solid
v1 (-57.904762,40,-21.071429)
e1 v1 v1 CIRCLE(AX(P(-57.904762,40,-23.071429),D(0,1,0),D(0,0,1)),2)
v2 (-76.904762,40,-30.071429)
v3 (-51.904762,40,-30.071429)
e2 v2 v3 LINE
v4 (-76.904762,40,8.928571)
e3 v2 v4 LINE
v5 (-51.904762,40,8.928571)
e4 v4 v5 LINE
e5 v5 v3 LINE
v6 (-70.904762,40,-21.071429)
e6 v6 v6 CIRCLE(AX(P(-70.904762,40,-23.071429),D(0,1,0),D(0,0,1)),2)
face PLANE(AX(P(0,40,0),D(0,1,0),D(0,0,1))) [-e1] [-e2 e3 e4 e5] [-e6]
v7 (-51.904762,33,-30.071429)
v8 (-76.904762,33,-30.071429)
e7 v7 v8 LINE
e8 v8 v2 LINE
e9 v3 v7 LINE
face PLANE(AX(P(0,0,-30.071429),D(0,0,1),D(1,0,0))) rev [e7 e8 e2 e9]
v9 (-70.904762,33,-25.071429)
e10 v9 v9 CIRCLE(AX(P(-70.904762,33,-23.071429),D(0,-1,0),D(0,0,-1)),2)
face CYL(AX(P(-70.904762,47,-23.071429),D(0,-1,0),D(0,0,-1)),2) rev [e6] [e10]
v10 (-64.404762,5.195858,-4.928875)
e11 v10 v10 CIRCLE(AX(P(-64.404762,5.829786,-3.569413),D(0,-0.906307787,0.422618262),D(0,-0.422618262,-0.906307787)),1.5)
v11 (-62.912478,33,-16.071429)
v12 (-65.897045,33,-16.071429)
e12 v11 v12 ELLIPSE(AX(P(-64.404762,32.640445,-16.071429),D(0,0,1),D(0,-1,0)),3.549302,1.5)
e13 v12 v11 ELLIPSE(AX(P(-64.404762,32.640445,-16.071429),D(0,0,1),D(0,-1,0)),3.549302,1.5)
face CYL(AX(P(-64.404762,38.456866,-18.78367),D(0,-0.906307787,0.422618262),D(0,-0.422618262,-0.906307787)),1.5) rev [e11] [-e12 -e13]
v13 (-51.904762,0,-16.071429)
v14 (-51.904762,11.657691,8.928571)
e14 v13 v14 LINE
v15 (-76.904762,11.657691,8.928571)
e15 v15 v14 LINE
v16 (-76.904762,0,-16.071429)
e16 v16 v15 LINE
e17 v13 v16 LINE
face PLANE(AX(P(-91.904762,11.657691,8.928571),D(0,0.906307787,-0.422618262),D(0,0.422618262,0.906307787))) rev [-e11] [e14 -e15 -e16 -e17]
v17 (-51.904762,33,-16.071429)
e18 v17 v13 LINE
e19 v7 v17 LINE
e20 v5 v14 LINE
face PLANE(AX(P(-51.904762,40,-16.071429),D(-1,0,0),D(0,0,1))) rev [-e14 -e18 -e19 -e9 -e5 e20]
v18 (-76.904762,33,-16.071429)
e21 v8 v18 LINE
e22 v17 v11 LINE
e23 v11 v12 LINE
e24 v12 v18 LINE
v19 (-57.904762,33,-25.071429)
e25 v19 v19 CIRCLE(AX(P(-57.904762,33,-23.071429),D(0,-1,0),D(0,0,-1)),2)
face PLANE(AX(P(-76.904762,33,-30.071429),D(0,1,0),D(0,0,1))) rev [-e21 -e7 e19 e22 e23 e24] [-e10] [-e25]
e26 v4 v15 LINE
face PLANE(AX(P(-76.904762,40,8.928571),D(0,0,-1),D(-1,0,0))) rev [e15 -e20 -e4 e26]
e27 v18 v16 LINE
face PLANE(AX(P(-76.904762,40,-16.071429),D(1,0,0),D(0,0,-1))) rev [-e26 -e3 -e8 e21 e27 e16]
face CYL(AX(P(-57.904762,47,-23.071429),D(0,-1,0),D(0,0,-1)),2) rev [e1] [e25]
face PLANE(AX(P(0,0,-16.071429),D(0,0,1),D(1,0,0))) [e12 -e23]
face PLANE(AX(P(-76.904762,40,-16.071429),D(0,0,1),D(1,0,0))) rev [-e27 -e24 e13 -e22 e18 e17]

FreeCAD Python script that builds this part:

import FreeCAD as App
import Part
import Sketcher
Q = App.Units.Quantity

doc = App.newDocument("Part")
body = doc.addObject("PartDesign::Body", "Body")

# Sketch on XZ plane
sketch1 = doc.addObject("Sketcher::SketchObject", "Sketch")
body.addObject(sketch1)
sketch1.AttachmentSupport = (doc.XZ_Plane, [""])
sketch1.MapMode = "FlatFace"
sketch1.addGeometry(Part.LineSegment(App.Vector(-77, -16, 0), App.Vector(-77, 9, 0)), False)
sketch1.addGeometry(Part.LineSegment(App.Vector(-77, 9, 0), App.Vector(-52, 9, 0)), False)
sketch1.addGeometry(Part.LineSegment(App.Vector(-52, 9, 0), App.Vector(-52, -16, 0)), False)
sketch1.addGeometry(Part.LineSegment(App.Vector(-52, -16, 0), App.Vector(-77, -16, 0)), False)
sketch1.addConstraint(Sketcher.Constraint("Coincident", 0, 2, 1, 1))
sketch1.addConstraint(Sketcher.Constraint("Coincident", 1, 2, 2, 1))
sketch1.addConstraint(Sketcher.Constraint("Coincident", 2, 2, 3, 1))
sketch1.addConstraint(Sketcher.Constraint("Coincident", 3, 2, 0, 1))
sketch1.addConstraint(Sketcher.Constraint("Vertical", 0))
sketch1.addConstraint(Sketcher.Constraint("Horizontal", 1))
sketch1.addConstraint(Sketcher.Constraint("Vertical", 2))
sketch1.addConstraint(Sketcher.Constraint("Horizontal", 3))
sketch1.addConstraint(Sketcher.Constraint("Equal", 3, 0))
sketch1.addConstraint(Sketcher.Constraint("DistanceX", 1, 1, 1, 2, Q("25 mm")))
sketch1.addConstraint(Sketcher.Constraint("DistanceX", 0, 2, -1, 1, Q("76.904762 mm")))
sketch1.addConstraint(Sketcher.Constraint("DistanceY", -1, 1, 0, 2, Q("8.928571 mm")))
pad1 = doc.addObject("PartDesign::Pad", "Pad")
body.addObject(pad1)
pad1.Profile = sketch1
pad1.Length = 40
pad1.Reversed = True

# Sketch on YZ plane
sketch2 = doc.addObject("Sketcher::SketchObject", "Sketch001")
body.addObject(sketch2)
sketch2.AttachmentSupport = (doc.YZ_Plane, [""])
sketch2.MapMode = "FlatFace"
sketch2.AttachmentOffset = App.Placement(App.Vector(0, 0, -51.904762), App.Rotation())
sketch2.addGeometry(Part.LineSegment(App.Vector(0, 9, 0), App.Vector(0, -16, 0)), False)
sketch2.addGeometry(Part.LineSegment(App.Vector(0, -16, 0), App.Vector(12, 9, 0)), False)
sketch2.addGeometry(Part.LineSegment(App.Vector(12, 9, 0), App.Vector(0, 9, 0)), False)
sketch2.addConstraint(Sketcher.Constraint("Coincident", 0, 2, 1, 1))
sketch2.addConstraint(Sketcher.Constraint("Coincident", 1, 2, 2, 1))
sketch2.addConstraint(Sketcher.Constraint("Coincident", 2, 2, 0, 1))
sketch2.addConstraint(Sketcher.Constraint("Vertical", 0))
sketch2.addConstraint(Sketcher.Constraint("Horizontal", 2))
sketch2.addConstraint(Sketcher.Constraint("PointOnObject", 0, 2, -2))
sketch2.addConstraint(Sketcher.Constraint("DistanceY", 0, 2, 0, 1, Q("25 mm")))
sketch2.addConstraint(Sketcher.Constraint("Angle", 1, Q("65 deg")))
sketch2.addConstraint(Sketcher.Constraint("DistanceY", 0, 2, -1, 1, Q("16.071429 mm")))
pocket1 = doc.addObject("PartDesign::Pocket", "Pocket")
body.addObject(pocket1)
pocket1.Profile = sketch2
pocket1.Length = 40

# Sketch on an angled plane
sketch3 = doc.addObject("Sketcher::SketchObject", "Sketch002")
body.addObject(sketch3)
sketch3.Placement = App.Placement(App.Vector(0, 6.155714, -2.870457), App.Rotation(App.Vector(1, 0, 0), App.Vector(0, 0.422618262, 0.906307787), App.Vector(0, -0.906307787, 0.422618262), "ZXY"))
sketch3.addGeometry(Part.Circle(App.Vector(-64.4, -0.8, 0), App.Vector(0, 0, 1), 1.5), False)
sketch3.addConstraint(Sketcher.Constraint("Diameter", 0, Q("3 mm")))
sketch3.addConstraint(Sketcher.Constraint("DistanceX", 0, 3, -1, 1, Q("64.404762 mm")))
sketch3.addConstraint(Sketcher.Constraint("DistanceY", 0, 3, -1, 1, Q("0.771213 mm")))
pocket2 = doc.addObject("PartDesign::Pocket", "Pocket001")
body.addObject(pocket2)
pocket2.Profile = sketch3
pocket2.Length = 36

# Sketch on XY plane
sketch4 = doc.addObject("Sketcher::SketchObject", "Sketch003")
body.addObject(sketch4)
sketch4.AttachmentSupport = (doc.XY_Plane, [""])
sketch4.MapMode = "FlatFace"
sketch4.AttachmentOffset = App.Placement(App.Vector(0, 0, -16.071429), App.Rotation())
sketch4.addGeometry(Part.LineSegment(App.Vector(-52, 40, 0), App.Vector(-52, 33, 0)), False)
sketch4.addGeometry(Part.LineSegment(App.Vector(-52, 33, 0), App.Vector(-77, 33, 0)), False)
sketch4.addGeometry(Part.LineSegment(App.Vector(-77, 33, 0), App.Vector(-77, 40, 0)), False)
sketch4.addGeometry(Part.LineSegment(App.Vector(-77, 40, 0), App.Vector(-52, 40, 0)), False)
sketch4.addConstraint(Sketcher.Constraint("Coincident", 0, 2, 1, 1))
sketch4.addConstraint(Sketcher.Constraint("Coincident", 1, 2, 2, 1))
sketch4.addConstraint(Sketcher.Constraint("Coincident", 2, 2, 3, 1))
sketch4.addConstraint(Sketcher.Constraint("Coincident", 3, 2, 0, 1))
sketch4.addConstraint(Sketcher.Constraint("Vertical", 0))
sketch4.addConstraint(Sketcher.Constraint("Horizontal", 1))
sketch4.addConstraint(Sketcher.Constraint("Vertical", 2))
sketch4.addConstraint(Sketcher.Constraint("Horizontal", 3))
sketch4.addConstraint(Sketcher.Constraint("DistanceX", 1, 2, 1, 1, Q("25 mm")))
sketch4.addConstraint(Sketcher.Constraint("DistanceY", 0, 2, 0, 1, Q("7 mm")))
sketch4.addConstraint(Sketcher.Constraint("DistanceY", -1, 1, 0, 2, Q("33 mm")))
sketch4.addConstraint(Sketcher.Constraint("DistanceX", 0, 2, -1, 1, Q("51.904762 mm")))
pad2 = doc.addObject("PartDesign::Pad", "Pad001")
body.addObject(pad2)
pad2.Profile = sketch4
pad2.Length = 14
pad2.Reversed = True

# Sketch on XZ plane
sketch5 = doc.addObject("Sketcher::SketchObject", "Sketch004")
body.addObject(sketch5)
sketch5.AttachmentSupport = (doc.XZ_Plane, [""])
sketch5.MapMode = "FlatFace"
sketch5.AttachmentOffset = App.Placement(App.Vector(0, 0, -33), App.Rotation())
sketch5.addGeometry(Part.Circle(App.Vector(-70.9, -23.1, 0), App.Vector(0, 0, 1), 2), False)
sketch5.addGeometry(Part.Circle(App.Vector(-57.9, -23.1, 0), App.Vector(0, 0, 1), 2), False)
sketch5.addConstraint(Sketcher.Constraint("Equal", 0, 1))
sketch5.addConstraint(Sketcher.Constraint("Horizontal", 0, 3, 1, 3))
sketch5.addConstraint(Sketcher.Constraint("Diameter", 0, Q("4 mm")))
sketch5.addConstraint(Sketcher.Constraint("DistanceX", 0, 3, 1, 3, Q("13 mm")))
sketch5.addConstraint(Sketcher.Constraint("DistanceX", 0, 3, -1, 1, Q("70.904762 mm")))
sketch5.addConstraint(Sketcher.Constraint("DistanceY", 0, 3, -1, 1, Q("23.071429 mm")))
pocket3 = doc.addObject("PartDesign::Pocket", "Pocket002")
body.addObject(pocket3)
pocket3.Profile = sketch5
pocket3.Length = 14

doc.recompute()
